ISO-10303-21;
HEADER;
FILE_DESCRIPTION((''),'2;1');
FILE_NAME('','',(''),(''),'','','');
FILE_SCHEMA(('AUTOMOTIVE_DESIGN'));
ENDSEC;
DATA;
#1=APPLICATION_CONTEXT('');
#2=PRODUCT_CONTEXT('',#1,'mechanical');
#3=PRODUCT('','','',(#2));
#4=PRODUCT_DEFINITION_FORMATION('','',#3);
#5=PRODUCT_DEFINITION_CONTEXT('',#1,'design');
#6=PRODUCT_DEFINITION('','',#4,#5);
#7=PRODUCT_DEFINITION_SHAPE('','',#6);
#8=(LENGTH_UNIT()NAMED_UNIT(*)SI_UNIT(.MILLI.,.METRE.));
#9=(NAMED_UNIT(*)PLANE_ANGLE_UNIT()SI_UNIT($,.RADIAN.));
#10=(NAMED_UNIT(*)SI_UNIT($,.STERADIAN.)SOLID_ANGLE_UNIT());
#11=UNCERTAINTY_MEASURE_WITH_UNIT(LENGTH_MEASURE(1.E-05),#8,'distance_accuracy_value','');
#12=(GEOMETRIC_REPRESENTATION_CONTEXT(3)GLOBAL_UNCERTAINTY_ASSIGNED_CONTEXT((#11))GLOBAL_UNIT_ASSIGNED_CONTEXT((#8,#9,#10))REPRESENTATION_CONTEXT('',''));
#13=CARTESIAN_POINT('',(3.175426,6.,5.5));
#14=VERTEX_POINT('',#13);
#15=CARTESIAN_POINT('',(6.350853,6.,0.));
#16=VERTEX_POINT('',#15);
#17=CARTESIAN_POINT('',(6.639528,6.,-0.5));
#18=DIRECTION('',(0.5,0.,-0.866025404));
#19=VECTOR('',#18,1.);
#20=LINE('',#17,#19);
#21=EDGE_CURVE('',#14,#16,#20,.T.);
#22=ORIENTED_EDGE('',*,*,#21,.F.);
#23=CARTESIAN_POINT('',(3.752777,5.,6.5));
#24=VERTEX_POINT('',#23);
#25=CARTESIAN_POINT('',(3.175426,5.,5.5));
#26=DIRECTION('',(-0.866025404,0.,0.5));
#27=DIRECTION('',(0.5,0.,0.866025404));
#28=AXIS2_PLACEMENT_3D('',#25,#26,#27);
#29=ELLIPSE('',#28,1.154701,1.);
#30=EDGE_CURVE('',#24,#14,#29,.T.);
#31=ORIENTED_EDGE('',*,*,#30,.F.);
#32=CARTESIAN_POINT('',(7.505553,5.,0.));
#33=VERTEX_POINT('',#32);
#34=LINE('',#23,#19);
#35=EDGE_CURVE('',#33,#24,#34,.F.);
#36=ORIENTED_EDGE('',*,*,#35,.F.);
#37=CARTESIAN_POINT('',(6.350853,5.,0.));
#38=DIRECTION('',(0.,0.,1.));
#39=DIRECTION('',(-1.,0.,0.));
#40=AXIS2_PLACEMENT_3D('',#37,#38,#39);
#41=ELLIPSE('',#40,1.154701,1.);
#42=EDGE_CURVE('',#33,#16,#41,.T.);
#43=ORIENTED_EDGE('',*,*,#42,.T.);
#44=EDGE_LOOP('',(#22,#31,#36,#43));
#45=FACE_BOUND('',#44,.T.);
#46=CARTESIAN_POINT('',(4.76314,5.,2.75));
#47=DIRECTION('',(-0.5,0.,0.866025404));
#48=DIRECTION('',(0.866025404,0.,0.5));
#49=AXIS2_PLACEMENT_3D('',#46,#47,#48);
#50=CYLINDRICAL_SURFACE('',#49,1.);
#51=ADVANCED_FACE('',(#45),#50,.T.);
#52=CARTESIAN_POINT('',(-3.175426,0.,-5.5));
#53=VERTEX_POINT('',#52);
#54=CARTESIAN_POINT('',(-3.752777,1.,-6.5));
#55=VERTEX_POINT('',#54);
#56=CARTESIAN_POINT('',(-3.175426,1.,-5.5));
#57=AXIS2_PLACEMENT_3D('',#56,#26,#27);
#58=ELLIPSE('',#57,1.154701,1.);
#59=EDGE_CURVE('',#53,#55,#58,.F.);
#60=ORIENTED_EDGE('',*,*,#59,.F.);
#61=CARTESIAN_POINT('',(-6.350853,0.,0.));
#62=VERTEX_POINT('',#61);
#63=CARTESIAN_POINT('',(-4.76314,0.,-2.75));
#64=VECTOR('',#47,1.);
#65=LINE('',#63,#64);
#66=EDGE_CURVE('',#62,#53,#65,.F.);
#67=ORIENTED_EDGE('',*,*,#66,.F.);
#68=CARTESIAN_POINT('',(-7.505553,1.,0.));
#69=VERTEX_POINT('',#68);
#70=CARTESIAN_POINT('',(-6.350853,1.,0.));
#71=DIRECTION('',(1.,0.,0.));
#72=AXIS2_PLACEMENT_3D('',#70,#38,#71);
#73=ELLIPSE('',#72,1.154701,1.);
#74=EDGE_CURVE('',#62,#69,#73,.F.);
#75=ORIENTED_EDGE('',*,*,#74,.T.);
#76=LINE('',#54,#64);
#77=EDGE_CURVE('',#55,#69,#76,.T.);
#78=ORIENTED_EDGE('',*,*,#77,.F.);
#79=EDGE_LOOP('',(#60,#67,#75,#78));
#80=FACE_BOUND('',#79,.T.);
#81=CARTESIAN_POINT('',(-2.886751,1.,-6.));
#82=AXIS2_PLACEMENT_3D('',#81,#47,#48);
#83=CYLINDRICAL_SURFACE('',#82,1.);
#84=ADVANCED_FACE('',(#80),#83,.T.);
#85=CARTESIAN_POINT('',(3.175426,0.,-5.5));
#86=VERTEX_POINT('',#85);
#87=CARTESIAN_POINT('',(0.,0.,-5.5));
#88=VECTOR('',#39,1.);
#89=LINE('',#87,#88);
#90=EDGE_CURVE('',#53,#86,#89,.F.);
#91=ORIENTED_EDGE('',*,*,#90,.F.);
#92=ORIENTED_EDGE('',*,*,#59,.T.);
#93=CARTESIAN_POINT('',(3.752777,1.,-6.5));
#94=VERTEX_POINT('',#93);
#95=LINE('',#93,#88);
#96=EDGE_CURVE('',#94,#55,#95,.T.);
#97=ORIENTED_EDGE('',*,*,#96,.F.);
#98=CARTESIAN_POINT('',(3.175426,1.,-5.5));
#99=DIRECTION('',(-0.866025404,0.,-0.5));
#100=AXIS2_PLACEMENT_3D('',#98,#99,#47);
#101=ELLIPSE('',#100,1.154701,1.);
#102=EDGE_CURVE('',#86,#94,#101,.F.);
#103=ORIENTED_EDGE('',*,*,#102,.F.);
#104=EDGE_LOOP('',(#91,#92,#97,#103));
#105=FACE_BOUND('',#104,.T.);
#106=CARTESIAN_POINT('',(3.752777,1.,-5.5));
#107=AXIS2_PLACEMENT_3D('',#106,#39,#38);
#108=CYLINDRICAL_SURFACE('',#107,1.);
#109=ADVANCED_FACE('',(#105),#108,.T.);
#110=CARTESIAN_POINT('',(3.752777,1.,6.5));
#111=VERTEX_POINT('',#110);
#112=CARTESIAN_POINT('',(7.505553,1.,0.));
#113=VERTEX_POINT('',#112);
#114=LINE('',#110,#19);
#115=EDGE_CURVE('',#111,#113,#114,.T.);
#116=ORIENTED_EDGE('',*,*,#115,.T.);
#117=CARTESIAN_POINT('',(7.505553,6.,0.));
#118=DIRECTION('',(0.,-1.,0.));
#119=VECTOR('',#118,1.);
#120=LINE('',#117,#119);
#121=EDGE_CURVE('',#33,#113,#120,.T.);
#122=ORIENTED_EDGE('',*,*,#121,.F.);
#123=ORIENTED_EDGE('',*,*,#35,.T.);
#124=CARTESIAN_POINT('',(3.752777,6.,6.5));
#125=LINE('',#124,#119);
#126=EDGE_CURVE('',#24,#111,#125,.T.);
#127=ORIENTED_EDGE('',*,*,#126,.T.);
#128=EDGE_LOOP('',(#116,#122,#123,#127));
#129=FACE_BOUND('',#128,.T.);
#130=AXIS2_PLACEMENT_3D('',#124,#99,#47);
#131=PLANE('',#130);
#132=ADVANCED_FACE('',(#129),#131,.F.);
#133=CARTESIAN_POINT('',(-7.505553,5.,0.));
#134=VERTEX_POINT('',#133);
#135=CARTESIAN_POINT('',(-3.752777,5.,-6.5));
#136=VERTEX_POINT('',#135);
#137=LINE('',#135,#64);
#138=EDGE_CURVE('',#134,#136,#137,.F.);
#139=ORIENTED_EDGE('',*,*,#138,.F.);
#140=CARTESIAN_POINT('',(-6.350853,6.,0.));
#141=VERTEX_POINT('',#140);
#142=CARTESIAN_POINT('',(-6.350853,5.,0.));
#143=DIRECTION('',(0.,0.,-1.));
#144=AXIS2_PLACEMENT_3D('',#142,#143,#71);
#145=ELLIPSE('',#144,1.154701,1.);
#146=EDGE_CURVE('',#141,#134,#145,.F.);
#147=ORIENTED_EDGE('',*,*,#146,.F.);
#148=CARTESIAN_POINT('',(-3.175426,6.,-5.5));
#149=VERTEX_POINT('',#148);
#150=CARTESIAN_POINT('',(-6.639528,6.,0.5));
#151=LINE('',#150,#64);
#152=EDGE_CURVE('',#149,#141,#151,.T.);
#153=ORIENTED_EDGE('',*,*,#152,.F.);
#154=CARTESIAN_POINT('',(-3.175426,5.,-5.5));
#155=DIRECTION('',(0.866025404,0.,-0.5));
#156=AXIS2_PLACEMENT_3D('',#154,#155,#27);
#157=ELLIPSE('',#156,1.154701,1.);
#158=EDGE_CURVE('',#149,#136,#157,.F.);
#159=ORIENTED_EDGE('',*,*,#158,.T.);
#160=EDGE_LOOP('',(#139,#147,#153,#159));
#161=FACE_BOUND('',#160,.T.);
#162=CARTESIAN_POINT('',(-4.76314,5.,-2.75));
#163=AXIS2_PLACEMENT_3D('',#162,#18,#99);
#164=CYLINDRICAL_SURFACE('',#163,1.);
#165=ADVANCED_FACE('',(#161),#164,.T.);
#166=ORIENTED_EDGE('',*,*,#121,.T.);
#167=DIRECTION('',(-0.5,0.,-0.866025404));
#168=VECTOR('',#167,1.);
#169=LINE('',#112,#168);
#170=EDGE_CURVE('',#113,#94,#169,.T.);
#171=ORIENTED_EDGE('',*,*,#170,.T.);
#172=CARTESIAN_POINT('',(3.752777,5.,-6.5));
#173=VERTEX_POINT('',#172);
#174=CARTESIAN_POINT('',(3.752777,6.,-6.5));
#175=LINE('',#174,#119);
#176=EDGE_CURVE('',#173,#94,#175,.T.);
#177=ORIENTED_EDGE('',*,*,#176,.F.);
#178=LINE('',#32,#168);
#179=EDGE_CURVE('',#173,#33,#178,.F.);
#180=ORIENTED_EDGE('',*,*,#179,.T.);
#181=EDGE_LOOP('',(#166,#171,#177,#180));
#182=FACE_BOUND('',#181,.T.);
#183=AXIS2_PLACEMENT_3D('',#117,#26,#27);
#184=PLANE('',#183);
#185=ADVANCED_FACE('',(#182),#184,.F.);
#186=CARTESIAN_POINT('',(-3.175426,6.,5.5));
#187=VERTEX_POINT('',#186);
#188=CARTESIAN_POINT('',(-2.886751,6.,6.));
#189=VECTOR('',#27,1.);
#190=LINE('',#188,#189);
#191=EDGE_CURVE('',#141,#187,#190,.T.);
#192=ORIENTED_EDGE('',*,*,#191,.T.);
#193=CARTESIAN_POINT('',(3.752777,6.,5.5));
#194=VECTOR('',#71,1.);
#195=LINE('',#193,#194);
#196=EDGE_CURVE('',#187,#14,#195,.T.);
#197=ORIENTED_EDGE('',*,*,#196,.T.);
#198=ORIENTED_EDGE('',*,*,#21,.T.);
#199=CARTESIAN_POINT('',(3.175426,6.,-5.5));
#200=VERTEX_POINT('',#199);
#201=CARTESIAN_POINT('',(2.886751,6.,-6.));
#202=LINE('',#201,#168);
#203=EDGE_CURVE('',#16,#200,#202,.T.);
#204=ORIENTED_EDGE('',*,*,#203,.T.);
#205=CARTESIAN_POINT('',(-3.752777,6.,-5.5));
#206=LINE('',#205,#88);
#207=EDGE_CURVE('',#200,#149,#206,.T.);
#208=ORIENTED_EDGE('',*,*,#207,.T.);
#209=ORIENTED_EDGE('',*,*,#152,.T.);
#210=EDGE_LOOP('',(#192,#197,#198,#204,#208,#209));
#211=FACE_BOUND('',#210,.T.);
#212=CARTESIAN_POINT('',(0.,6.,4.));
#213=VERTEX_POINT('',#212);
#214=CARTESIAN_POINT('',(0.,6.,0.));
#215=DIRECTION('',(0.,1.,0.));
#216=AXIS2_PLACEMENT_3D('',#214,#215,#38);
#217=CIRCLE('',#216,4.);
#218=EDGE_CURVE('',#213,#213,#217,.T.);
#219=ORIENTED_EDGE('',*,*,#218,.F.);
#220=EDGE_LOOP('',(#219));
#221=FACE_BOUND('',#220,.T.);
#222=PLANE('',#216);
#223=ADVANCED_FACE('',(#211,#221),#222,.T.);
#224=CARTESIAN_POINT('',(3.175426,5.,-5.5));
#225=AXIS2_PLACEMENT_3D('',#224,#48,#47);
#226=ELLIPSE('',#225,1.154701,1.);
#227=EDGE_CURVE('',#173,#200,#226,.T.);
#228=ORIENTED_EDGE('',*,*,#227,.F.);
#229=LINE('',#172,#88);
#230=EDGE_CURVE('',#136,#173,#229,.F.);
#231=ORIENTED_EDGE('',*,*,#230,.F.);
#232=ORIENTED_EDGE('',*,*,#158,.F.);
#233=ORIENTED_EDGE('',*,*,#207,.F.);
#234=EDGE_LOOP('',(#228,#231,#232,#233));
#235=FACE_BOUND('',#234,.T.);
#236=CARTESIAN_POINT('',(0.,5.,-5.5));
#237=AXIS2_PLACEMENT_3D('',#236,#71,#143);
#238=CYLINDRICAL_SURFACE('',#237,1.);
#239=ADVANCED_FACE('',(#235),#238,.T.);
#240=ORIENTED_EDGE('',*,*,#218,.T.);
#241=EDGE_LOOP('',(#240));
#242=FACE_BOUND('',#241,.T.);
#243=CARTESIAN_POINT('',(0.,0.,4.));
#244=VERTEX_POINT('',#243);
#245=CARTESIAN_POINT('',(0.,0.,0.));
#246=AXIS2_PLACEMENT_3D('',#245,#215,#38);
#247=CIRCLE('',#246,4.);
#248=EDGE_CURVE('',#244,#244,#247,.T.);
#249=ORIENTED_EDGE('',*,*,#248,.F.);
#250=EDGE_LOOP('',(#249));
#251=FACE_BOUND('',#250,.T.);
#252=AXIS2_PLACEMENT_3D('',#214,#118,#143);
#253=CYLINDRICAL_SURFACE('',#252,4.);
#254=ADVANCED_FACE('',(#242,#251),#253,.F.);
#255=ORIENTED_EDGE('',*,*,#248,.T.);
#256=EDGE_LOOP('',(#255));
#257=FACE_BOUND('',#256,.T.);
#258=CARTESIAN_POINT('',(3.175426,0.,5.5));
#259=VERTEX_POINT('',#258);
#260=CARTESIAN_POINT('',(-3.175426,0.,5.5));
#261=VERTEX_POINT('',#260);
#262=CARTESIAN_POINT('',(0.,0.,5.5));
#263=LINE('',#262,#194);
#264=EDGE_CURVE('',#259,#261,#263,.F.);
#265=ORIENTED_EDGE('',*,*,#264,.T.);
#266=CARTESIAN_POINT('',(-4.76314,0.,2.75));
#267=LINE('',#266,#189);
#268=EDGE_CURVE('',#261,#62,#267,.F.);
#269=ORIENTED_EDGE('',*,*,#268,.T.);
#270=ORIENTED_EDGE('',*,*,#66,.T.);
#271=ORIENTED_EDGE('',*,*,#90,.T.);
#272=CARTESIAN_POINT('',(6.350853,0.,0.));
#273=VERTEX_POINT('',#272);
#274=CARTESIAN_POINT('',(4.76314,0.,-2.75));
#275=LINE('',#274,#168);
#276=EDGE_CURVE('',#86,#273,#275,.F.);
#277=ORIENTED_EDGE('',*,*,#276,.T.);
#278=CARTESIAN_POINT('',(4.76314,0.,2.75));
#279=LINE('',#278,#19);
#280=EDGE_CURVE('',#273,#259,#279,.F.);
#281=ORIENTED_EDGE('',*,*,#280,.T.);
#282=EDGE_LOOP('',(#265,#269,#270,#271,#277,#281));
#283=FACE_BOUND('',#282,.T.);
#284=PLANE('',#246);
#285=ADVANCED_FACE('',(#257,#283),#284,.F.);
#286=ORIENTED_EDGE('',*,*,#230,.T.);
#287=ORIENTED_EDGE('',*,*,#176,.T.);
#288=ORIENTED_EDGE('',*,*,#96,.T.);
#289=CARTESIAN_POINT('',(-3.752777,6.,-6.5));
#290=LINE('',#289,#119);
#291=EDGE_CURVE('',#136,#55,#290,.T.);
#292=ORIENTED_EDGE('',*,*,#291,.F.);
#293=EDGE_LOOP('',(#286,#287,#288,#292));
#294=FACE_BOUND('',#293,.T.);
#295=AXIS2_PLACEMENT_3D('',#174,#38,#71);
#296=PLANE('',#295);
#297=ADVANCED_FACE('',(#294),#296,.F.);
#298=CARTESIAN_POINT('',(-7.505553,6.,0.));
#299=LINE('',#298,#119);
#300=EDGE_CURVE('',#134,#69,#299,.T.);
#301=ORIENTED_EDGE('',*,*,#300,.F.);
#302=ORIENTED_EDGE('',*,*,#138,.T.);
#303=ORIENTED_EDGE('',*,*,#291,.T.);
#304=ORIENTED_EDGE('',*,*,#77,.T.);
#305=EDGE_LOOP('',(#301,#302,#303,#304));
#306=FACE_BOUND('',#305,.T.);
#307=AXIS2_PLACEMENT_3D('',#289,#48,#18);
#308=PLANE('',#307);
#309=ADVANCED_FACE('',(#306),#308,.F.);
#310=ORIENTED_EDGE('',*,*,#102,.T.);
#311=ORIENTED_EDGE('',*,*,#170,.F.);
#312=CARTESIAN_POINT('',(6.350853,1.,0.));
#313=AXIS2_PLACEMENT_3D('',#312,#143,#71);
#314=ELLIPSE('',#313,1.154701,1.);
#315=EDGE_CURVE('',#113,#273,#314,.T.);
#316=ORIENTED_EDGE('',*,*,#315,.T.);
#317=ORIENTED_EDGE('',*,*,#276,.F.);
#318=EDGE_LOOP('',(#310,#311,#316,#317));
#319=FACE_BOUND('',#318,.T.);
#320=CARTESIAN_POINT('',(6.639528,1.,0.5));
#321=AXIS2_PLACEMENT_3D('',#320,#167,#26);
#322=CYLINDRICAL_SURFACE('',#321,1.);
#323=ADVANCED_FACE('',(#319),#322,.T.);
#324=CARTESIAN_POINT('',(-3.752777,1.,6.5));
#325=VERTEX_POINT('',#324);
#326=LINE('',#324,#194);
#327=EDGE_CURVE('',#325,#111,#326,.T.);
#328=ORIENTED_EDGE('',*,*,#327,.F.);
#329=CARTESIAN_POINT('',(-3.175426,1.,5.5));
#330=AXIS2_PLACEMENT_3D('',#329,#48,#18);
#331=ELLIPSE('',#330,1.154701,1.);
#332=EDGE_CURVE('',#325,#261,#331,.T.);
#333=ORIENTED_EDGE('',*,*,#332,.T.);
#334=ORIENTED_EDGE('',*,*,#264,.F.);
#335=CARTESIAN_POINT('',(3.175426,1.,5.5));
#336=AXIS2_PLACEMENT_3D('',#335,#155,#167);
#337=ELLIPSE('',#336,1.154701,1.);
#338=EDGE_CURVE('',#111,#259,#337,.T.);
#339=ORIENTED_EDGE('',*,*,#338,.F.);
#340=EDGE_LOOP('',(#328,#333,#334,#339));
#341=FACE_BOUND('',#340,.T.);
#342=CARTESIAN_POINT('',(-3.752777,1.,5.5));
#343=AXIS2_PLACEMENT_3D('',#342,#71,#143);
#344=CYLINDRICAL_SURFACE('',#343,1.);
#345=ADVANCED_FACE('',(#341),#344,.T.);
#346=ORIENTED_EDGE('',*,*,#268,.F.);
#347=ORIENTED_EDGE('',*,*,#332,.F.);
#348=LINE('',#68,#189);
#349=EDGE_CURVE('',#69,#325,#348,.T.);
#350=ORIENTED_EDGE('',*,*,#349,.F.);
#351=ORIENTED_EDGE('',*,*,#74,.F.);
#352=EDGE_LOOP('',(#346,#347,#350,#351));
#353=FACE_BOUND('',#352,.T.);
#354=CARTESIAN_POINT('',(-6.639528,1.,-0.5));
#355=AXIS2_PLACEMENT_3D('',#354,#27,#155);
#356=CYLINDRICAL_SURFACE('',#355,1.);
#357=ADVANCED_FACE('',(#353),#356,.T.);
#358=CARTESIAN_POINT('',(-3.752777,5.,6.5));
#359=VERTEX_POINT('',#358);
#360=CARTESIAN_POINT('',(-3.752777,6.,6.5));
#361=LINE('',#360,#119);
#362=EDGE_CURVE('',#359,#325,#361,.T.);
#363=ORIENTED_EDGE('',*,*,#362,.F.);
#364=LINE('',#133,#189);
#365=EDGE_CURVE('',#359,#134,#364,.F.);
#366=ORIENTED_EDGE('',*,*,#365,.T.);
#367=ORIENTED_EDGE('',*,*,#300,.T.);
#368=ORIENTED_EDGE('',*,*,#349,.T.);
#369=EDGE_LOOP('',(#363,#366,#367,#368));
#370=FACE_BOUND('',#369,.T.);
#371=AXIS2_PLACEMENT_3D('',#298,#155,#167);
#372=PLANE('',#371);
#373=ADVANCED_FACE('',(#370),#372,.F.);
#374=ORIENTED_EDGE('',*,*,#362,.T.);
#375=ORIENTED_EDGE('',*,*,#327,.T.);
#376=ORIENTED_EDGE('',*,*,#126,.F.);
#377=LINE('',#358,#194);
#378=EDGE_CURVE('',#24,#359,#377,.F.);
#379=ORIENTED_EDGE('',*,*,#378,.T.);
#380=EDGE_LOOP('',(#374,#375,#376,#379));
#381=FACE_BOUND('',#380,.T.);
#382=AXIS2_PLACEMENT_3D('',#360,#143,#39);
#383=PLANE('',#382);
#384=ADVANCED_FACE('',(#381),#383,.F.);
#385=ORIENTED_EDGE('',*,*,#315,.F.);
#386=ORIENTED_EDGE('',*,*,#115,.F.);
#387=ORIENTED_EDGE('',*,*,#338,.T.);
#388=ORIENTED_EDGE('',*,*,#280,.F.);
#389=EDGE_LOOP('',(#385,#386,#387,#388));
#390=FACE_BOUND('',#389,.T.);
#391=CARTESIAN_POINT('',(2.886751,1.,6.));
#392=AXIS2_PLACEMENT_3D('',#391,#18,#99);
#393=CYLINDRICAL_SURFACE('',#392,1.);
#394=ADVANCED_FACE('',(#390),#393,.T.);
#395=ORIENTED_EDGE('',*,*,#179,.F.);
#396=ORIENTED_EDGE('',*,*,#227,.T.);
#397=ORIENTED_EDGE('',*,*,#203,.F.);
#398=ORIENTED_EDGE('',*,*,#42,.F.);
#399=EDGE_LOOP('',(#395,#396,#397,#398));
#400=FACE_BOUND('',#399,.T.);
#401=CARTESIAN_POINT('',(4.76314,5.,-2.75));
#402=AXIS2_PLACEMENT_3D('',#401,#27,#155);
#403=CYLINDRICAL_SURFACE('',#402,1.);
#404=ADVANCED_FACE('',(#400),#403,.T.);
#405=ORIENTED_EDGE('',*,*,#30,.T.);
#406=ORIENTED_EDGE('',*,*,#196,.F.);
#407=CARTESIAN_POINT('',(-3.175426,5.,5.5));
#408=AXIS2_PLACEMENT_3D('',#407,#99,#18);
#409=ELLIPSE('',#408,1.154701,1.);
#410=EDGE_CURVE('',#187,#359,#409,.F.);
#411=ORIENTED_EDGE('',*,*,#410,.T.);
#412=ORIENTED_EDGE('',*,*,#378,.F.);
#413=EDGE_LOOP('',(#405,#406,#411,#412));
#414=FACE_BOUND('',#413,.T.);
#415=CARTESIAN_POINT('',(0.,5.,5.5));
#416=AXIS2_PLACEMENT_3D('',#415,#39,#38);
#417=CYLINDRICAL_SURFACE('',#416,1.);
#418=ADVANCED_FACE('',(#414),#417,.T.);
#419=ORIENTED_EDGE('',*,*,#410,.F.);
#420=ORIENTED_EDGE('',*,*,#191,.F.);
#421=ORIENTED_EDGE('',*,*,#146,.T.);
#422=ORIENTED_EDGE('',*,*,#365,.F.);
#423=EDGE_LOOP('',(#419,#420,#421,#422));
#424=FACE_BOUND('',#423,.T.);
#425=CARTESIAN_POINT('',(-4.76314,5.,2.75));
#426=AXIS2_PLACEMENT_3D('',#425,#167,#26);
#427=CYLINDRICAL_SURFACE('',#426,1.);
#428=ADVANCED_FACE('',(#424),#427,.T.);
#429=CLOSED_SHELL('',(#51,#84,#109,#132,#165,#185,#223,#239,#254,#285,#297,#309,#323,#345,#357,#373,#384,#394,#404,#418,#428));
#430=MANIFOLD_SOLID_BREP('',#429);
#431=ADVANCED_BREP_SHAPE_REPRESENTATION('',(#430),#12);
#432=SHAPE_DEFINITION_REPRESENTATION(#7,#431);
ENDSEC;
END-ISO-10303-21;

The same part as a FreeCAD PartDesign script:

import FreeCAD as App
import Part
import Sketcher
Q = App.Units.Quantity


def edges_at(feature, points):
    """Names of the edges that pass closest to the given points."""
    edges = feature.Shape.Edges
    near = lambda p: min(range(len(edges)), key=lambda i: edges[i].distToShape(Part.Vertex(*p))[0])
    return sorted({f"Edge{near(p) + 1}" for p in points})

doc = App.newDocument("Part")
body = doc.addObject("PartDesign::Body", "Body")

sketch1 = body.newObject("Sketcher::SketchObject", "Sketch")
sketch1.AttachmentSupport = (doc.getObject("XZ_Plane"), [""])
sketch1.MapMode = "FlatFace"
sketch1.addGeometry(Part.LineSegment(App.Vector(7.5, 0, 0), App.Vector(3.8, -6.5, 0)), False)
sketch1.addGeometry(Part.LineSegment(App.Vector(3.8, -6.5, 0), App.Vector(-3.8, -6.5, 0)), False)
sketch1.addGeometry(Part.LineSegment(App.Vector(-3.8, -6.5, 0), App.Vector(-7.5, 0, 0)), False)
sketch1.addGeometry(Part.LineSegment(App.Vector(-7.5, 0, 0), App.Vector(-3.8, 6.5, 0)), False)
sketch1.addGeometry(Part.LineSegment(App.Vector(-3.8, 6.5, 0), App.Vector(3.8, 6.5, 0)), False)
sketch1.addGeometry(Part.LineSegment(App.Vector(3.8, 6.5, 0), App.Vector(7.5, 0, 0)), False)
sketch1.addGeometry(Part.Circle(App.Vector(0, 0, 0), App.Vector(0, 0, 1), 4), False)
sketch1.addConstraint(Sketcher.Constraint("Coincident", 0, 2, 1, 1))
sketch1.addConstraint(Sketcher.Constraint("Coincident", 1, 2, 2, 1))
sketch1.addConstraint(Sketcher.Constraint("Coincident", 2, 2, 3, 1))
sketch1.addConstraint(Sketcher.Constraint("Coincident", 3, 2, 4, 1))
sketch1.addConstraint(Sketcher.Constraint("Coincident", 4, 2, 5, 1))
sketch1.addConstraint(Sketcher.Constraint("Coincident", 5, 2, 0, 1))
sketch1.addConstraint(Sketcher.Constraint("Horizontal", 1))
sketch1.addConstraint(Sketcher.Constraint("Horizontal", 4))
sketch1.addConstraint(Sketcher.Constraint("Coincident", 6, 3, -1, 1))
sketch1.addConstraint(Sketcher.Constraint("Symmetric", 0, 2, 3, 2, -1, 1))
sketch1.addConstraint(Sketcher.Constraint("Symmetric", 2, 2, 5, 2, -1, 1))
sketch1.addConstraint(Sketcher.Constraint("PointOnObject", 2, 2, -1))
sketch1.addConstraint(Sketcher.Constraint("Parallel", 2, 5))
sketch1.addConstraint(Sketcher.Constraint("Vertical", 1, 2, 3, 2))
sketch1.addConstraint(Sketcher.Constraint("Diameter", 6, 8.0))
sketch1.addConstraint(Sketcher.Constraint("Angle", 0, Q("-120 deg")))
sketch1.addConstraint(Sketcher.Constraint("DistanceY", 1, 2, 3, 2, 13.0))
sketch1.addConstraint(Sketcher.Constraint("DistanceX", 1, 2, 1, 1, 7.505554))
pad1 = body.newObject("PartDesign::Pad", "Pad")
pad1.Profile = sketch1
pad1.Length = 6
pad1.Reversed = True
doc.recompute()

fillet = body.newObject("PartDesign::Fillet", "Fillet")
fillet.Base = (pad1, edges_at(pad1, [
    (0, 6, -6.5),
    (-5.629, 6, -3.25),
    (-5.629, 6, 3.25),
    (0, 6, 6.5),
    (5.629, 6, 3.25),
    (0, 0, 6.5),
    (-5.629, 0, 3.25),
    (-5.629, 0, -3.25),
    (0, 0, -6.5),
    (5.629, 0, -3.25),
    (5.629, 0, 3.25),
    (5.629, 6, -3.25),
]))
fillet.Radius = 1

doc.recompute()
